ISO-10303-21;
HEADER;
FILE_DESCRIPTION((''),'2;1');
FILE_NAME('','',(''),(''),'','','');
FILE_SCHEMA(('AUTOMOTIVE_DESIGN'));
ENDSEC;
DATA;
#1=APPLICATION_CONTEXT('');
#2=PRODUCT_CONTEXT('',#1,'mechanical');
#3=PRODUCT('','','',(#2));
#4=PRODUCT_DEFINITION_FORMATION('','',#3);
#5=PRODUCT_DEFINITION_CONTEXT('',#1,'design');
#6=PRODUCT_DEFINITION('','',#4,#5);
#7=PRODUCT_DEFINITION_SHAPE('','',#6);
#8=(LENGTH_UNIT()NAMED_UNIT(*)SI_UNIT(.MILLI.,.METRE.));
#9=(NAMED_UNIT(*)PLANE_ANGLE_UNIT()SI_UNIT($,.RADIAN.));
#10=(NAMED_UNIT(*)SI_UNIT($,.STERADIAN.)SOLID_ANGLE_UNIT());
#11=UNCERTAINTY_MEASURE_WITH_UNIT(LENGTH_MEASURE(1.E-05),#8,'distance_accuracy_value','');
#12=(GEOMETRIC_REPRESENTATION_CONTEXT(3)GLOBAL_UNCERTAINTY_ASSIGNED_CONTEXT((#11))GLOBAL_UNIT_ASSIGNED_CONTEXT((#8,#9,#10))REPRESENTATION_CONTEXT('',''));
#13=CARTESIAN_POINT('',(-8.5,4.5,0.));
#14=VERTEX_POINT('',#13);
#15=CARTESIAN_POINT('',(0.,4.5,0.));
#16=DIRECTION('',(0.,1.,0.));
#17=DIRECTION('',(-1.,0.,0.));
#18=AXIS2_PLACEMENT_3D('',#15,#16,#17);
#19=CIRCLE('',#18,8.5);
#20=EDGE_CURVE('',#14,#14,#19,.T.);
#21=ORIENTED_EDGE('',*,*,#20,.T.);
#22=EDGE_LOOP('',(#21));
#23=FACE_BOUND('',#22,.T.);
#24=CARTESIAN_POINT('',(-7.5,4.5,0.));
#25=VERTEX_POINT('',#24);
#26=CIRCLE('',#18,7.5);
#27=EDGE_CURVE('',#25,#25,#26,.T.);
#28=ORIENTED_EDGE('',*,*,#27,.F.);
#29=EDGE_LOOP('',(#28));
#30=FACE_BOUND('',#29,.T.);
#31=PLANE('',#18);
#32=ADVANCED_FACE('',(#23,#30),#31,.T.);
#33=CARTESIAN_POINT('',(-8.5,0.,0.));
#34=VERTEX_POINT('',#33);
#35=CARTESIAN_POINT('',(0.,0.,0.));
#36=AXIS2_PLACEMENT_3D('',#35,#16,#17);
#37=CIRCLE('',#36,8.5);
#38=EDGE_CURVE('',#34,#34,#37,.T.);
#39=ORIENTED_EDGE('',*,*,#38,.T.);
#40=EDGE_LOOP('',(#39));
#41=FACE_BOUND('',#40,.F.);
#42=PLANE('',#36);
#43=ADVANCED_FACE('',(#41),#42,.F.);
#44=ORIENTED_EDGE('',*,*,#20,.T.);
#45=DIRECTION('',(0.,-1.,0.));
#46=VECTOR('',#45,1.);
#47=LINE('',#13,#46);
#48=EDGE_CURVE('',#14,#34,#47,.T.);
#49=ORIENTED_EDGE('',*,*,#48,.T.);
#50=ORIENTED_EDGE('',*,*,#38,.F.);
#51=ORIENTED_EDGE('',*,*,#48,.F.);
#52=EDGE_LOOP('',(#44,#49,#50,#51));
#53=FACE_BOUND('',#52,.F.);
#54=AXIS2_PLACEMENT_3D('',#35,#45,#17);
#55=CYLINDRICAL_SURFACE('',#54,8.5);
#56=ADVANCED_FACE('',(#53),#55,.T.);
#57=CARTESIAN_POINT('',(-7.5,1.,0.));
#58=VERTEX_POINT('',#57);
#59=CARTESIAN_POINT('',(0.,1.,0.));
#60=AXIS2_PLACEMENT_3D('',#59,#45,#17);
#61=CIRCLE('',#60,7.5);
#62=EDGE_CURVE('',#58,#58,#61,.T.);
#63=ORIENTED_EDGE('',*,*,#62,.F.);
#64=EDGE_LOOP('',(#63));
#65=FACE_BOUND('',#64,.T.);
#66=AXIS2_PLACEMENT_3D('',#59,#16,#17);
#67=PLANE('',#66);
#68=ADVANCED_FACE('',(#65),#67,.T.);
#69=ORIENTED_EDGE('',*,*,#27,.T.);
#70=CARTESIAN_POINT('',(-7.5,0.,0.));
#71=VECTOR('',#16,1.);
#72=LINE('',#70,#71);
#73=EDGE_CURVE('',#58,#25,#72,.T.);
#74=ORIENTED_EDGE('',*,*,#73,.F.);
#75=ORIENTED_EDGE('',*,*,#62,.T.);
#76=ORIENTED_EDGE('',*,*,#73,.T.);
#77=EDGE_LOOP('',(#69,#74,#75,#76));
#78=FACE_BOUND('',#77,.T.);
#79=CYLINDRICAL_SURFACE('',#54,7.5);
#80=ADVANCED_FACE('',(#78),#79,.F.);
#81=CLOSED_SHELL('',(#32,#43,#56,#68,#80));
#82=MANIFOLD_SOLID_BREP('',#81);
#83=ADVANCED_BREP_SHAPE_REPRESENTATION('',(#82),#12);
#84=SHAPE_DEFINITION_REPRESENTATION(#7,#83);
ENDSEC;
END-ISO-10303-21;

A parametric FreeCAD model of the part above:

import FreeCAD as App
import Part
import Sketcher
from FreeCAD import Vector

doc = App.newDocument("Part")
body = doc.addObject("PartDesign::Body", "Body")

# Sketch on XZ plane
sketch1 = body.newObject("Sketcher::SketchObject", "Sketch")
sketch1.AttachmentSupport = (doc.getObject("XZ_Plane"), [""])
sketch1.MapMode = "FlatFace"
sketch1.addGeometry(Part.Circle(Vector(0, 0, 0), Vector(0, 0, 1), 8.5), False)
sketch1.addConstraint(Sketcher.Constraint("Coincident", 0, 3, -1, 1))
sketch1.addConstraint(Sketcher.Constraint("Diameter", 0, 17.0))
pad1 = body.newObject("PartDesign::Pad", "Pad")
pad1.Profile = sketch1
pad1.Length = 1
pad1.Reversed = True

# Sketch on XZ plane
sketch2 = body.newObject("Sketcher::SketchObject", "Sketch001")
sketch2.AttachmentSupport = (doc.getObject("XZ_Plane"), [""])
sketch2.MapMode = "FlatFace"
sketch2.addGeometry(Part.Circle(Vector(0, 0, 0), Vector(0, 0, 1), 8.5), False)
sketch2.addGeometry(Part.Circle(Vector(0, 0, 0), Vector(0, 0, 1), 7.5), False)
sketch2.addConstraint(Sketcher.Constraint("Coincident", 0, 3, -1, 1))
sketch2.addConstraint(Sketcher.Constraint("Coincident", 1, 3, -1, 1))
sketch2.addConstraint(Sketcher.Constraint("Diameter", 0, 17.0))
sketch2.addConstraint(Sketcher.Constraint("Diameter", 1, 15.0))
pad2 = body.newObject("PartDesign::Pad", "Pad001")
pad2.Profile = sketch2
pad2.Length = 4.5
pad2.Reversed = True

doc.recompute()
